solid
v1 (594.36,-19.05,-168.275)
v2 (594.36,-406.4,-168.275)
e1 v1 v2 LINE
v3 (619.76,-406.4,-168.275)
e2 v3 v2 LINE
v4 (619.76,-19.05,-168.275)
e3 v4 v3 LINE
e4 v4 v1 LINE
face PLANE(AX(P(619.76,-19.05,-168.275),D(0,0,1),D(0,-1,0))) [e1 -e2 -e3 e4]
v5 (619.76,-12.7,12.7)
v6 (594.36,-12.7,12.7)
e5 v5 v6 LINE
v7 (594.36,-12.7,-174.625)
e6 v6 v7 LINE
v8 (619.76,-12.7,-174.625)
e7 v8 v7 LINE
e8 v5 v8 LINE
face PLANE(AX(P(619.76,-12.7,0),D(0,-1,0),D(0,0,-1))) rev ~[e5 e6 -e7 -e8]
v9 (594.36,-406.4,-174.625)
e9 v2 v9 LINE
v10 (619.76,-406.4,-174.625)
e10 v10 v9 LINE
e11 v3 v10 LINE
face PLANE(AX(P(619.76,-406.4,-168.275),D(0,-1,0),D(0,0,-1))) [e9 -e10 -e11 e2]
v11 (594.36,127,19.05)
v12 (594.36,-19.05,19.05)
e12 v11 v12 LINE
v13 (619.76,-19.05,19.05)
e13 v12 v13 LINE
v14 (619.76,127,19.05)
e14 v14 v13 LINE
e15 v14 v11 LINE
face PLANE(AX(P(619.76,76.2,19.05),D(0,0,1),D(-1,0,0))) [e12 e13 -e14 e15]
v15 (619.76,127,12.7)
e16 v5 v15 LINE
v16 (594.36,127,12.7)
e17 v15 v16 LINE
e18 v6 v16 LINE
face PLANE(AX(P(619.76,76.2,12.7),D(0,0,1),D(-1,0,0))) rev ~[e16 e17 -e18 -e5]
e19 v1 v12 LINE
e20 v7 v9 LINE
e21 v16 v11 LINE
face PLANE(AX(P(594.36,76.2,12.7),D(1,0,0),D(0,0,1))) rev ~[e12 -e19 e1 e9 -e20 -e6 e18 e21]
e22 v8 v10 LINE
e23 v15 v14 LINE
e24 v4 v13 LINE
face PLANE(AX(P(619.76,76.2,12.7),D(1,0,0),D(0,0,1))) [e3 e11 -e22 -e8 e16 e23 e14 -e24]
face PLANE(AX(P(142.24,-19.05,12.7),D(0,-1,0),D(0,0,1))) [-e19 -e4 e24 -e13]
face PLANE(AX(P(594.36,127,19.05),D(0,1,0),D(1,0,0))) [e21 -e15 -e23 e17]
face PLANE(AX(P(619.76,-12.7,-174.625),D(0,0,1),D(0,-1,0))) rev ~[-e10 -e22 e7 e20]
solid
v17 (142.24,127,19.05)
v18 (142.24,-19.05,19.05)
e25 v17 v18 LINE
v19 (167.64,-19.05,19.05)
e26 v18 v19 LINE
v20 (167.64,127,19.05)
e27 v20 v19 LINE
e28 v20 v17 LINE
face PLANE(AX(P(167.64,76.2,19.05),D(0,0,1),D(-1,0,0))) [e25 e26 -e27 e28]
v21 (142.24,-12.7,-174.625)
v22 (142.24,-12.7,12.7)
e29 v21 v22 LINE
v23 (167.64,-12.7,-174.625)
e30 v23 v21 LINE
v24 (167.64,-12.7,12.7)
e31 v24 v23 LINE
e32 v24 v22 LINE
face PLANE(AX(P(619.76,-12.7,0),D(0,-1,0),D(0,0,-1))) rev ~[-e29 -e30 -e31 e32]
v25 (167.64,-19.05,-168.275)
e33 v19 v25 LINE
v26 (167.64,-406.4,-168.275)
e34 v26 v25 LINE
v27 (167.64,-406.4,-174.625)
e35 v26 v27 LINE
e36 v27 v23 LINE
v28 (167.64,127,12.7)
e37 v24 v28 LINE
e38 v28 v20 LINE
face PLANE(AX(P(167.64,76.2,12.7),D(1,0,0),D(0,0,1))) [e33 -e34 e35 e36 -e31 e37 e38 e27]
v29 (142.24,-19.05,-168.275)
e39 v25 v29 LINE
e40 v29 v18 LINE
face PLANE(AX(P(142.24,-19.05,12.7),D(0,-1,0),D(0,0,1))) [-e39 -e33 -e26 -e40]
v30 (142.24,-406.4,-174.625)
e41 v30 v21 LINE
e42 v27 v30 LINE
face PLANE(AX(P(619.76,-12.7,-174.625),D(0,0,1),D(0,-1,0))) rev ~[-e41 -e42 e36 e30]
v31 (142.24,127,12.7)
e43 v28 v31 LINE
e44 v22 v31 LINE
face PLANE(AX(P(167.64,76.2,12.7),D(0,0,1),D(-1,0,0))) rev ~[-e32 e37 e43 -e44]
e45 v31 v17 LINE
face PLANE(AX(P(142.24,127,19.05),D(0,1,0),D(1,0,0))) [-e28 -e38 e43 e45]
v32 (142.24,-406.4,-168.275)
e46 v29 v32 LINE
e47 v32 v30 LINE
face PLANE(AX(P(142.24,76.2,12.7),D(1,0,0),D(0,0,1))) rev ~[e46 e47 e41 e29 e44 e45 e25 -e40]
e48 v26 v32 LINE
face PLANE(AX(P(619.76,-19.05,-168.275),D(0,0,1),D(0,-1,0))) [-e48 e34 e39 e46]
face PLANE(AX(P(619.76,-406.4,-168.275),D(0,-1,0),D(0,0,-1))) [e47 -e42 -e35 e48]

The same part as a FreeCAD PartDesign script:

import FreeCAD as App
import Part
import Sketcher
Q = App.Units.Quantity


def add_polygon(sketch, points):
    """Adds a closed chain of lines whose ends are joined by coincident constraints."""
    first, n = sketch.GeometryCount, len(points)
    for a, b in zip(points, points[1:] + points[:1]):
        sketch.addGeometry(Part.LineSegment(App.Vector(*a, 0), App.Vector(*b, 0)), False)
    for i in range(n):
        sketch.addConstraint(Sketcher.Constraint("Coincident", first + i, 2, first + (i + 1) % n, 1))

doc = App.newDocument("Part")
body = doc.addObject("PartDesign::Body", "Body")
body.AllowCompound = True

sketch1 = body.newObject("Sketcher::SketchObject", "Sketch")
sketch1.AttachmentSupport = (doc.getObject("XY_Plane"), [""])
sketch1.MapMode = "FlatFace"
add_polygon(sketch1, [(168, 76), (142, 76), (142, -406), (168, -406)])
add_polygon(sketch1, [(620, 76), (594, 76), (594, -406), (620, -406)])
sketch1.addConstraint([
    Sketcher.Constraint("Horizontal", 0),
    Sketcher.Constraint("Vertical", 1),
    Sketcher.Constraint("Horizontal", 2),
    Sketcher.Constraint("Vertical", 3),
    Sketcher.Constraint("Horizontal", 4),
    Sketcher.Constraint("Vertical", 5),
    Sketcher.Constraint("Horizontal", 6),
    Sketcher.Constraint("Vertical", 7),
    Sketcher.Constraint("Horizontal", 3, 2, 4, 2),
    Sketcher.Constraint("Horizontal", 2, 2, 5, 2),
    Sketcher.Constraint("Equal", 2, 4),
    Sketcher.Constraint("DistanceX", 0, 2, 0, 1, Q("1 in")),
    Sketcher.Constraint("DistanceY", 1, 2, 1, 1, Q("19 in")),
    Sketcher.Constraint("DistanceY", -1, 1, 0, 2, Q("3 in")),
    Sketcher.Constraint("DistanceX", 3, 2, 4, 2, Q("16.8 in")),
    Sketcher.Constraint("DistanceX", -1, 1, 0, 2, Q("5.6 in")),
])
pad1 = body.newObject("PartDesign::Pad", "Pad")
pad1.Profile = sketch1
pad1.Length = Q("0.75 in")

sketch2 = body.newObject("Sketcher::SketchObject", "Sketch001")
sketch2.AttachmentSupport = (doc.getObject("YZ_Plane"), [""])
sketch2.MapMode = "FlatFace"
sketch2.AttachmentOffset = App.Placement(App.Vector(0, 0, 5.6 * 25.4), App.Rotation())
add_polygon(sketch2, [(76, 13), (76, 0), (-406, 0), (-406, 13)])
sketch2.addConstraint([
    Sketcher.Constraint("Vertical", 0),
    Sketcher.Constraint("Horizontal", 1),
    Sketcher.Constraint("Vertical", 2),
    Sketcher.Constraint("Horizontal", 3),
    Sketcher.Constraint("PointOnObject", 0, 2, -1),
    Sketcher.Constraint("DistanceX", 1, 2, 1, 1, Q("19 in")),
    Sketcher.Constraint("DistanceY", 0, 2, 0, 1, Q("0.5 in")),
    Sketcher.Constraint("DistanceX", -1, 1, 0, 2, Q("3 in")),
])
pocket1 = body.newObject("PartDesign::Pocket", "Pocket")
pocket1.Profile = sketch2
pocket1.Length = Q("82.3125 in")
pocket1.Reversed = True

sketch3 = body.newObject("Sketcher::SketchObject", "Sketch002")
sketch3.AttachmentSupport = (doc.getObject("YZ_Plane"), [""])
sketch3.MapMode = "FlatFace"
sketch3.AttachmentOffset = App.Placement(App.Vector(0, 0, 24.4 * 25.4), App.Rotation())
add_polygon(sketch3, [(-13, -175), (-13, 13), (-19, 13), (-19, -168), (-406, -168), (-406, -175)])
sketch3.addConstraint([
    Sketcher.Constraint("Vertical", 0),
    Sketcher.Constraint("Horizontal", 1),
    Sketcher.Constraint("Vertical", 2),
    Sketcher.Constraint("Horizontal", 3),
    Sketcher.Constraint("Vertical", 4),
    Sketcher.Constraint("Horizontal", 5),
    Sketcher.Constraint("Equal", 1, 4),
    Sketcher.Constraint("DistanceX", 1, 2, 1, 1, Q("0.25 in")),
    Sketcher.Constraint("DistanceX", 3, 2, 3, 1, Q("15.25 in")),
    Sketcher.Constraint("DistanceX", 0, 2, -1, 1, Q("0.5 in")),
    Sketcher.Constraint("DistanceY", -1, 1, 0, 2, Q("0.5 in")),
    Sketcher.Constraint("DistanceY", 0, 1, 0, 2, Q("7.375 in")),
])
pad2 = body.newObject("PartDesign::Pad", "Pad001")
pad2.Profile = sketch3
pad2.Length = Q("18.8 in")
pad2.Reversed = True

sketch4 = body.newObject("Sketcher::SketchObject", "Sketch003")
sketch4.AttachmentSupport = (doc.getObject("YZ_Plane"), [""])
sketch4.MapMode = "FlatFace"
sketch4.AttachmentOffset = App.Placement(App.Vector(0, 0, 5.6 * 25.4), App.Rotation())
add_polygon(sketch4, [(-19, 19), (-19, 13), (-406, 13), (-406, 19)])
sketch4.addConstraint([
    Sketcher.Constraint("Vertical", 0),
    Sketcher.Constraint("Horizontal", 1),
    Sketcher.Constraint("Vertical", 2),
    Sketcher.Constraint("Horizontal", 3),
    Sketcher.Constraint("DistanceX", 1, 2, -1, 1, Q("16 in")),
    Sketcher.Constraint("DistanceX", 1, 2, 1, 1, Q("15.25 in")),
    Sketcher.Constraint("DistanceY", 0, 2, 0, 1, Q("0.25 in")),
    Sketcher.Constraint("DistanceY", -1, 1, 0, 2, Q("0.5 in")),
])
pocket2 = body.newObject("PartDesign::Pocket", "Pocket001")
pocket2.Profile = sketch4
pocket2.Length = Q("26.95 in")
pocket2.Reversed = True

sketch5 = body.newObject("Sketcher::SketchObject", "Sketch004")
sketch5.AttachmentSupport = (doc.getObject("XY_Plane"), [""])
sketch5.MapMode = "FlatFace"
sketch5.AttachmentOffset = App.Placement(App.Vector(0, 0, 0.5 * 25.4), App.Rotation())
add_polygon(sketch5, [(168, -13), (168, -19), (594, -19), (594, -13)])
sketch5.addConstraint([
    Sketcher.Constraint("Vertical", 0),
    Sketcher.Constraint("Horizontal", 1),
    Sketcher.Constraint("Vertical", 2),
    Sketcher.Constraint("Horizontal", 3),
    Sketcher.Constraint("DistanceX", 1, 1, 1, 2, Q("16.8 in")),
    Sketcher.Constraint("DistanceY", 0, 2, 0, 1, Q("0.25 in")),
    Sketcher.Constraint("DistanceX", -1, 1, 0, 2, Q("6.6 in")),
    Sketcher.Constraint("DistanceY", 2, 2, -1, 1, Q("0.5 in")),
])
pocket3 = body.newObject("PartDesign::Pocket", "Pocket002")
pocket3.Profile = sketch5
pocket3.Length = Q("39.675 in")

sketch6 = body.newObject("Sketcher::SketchObject", "Sketch005")
sketch6.AttachmentSupport = (doc.getObject("XY_Plane"), [""])
sketch6.MapMode = "FlatFace"
sketch6.AttachmentOffset = App.Placement(App.Vector(0, 0, -6.625 * 25.4), App.Rotation())
add_polygon(sketch6, [(168, -406), (594, -406), (594, -19), (168, -19)])
sketch6.addConstraint([
    Sketcher.Constraint("Horizontal", 0),
    Sketcher.Constraint("Vertical", 1),
    Sketcher.Constraint("Horizontal", 2),
    Sketcher.Constraint("Vertical", 3),
    Sketcher.Constraint("DistanceX", 0, 1, 0, 2, Q("16.8 in")),
    Sketcher.Constraint("DistanceY", 0, 2, -1, 1, Q("16 in")),
    Sketcher.Constraint("DistanceY", 1, 1, 1, 2, Q("15.25 in")),
    Sketcher.Constraint("DistanceX", -1, 1, 0, 2, Q("23.4 in")),
])
pocket4 = body.newObject("PartDesign::Pocket", "Pocket003")
pocket4.Profile = sketch6
pocket4.Length = Q("7.3875 in")

sketch7 = body.newObject("Sketcher::SketchObject", "Sketch006")
sketch7.AttachmentSupport = (doc.getObject("XZ_Plane"), [""])
sketch7.MapMode = "FlatFace"
sketch7.AttachmentOffset = App.Placement(App.Vector(0, 0, -3 * 25.4), App.Rotation())
add_polygon(sketch7, [(620, 19), (620, 13), (594, 13), (594, 19)])
sketch7.addConstraint([
    Sketcher.Constraint("Vertical", 0),
    Sketcher.Constraint("Horizontal", 1),
    Sketcher.Constraint("Vertical", 2),
    Sketcher.Constraint("Horizontal", 3),
    Sketcher.Constraint("DistanceX", 1, 2, 1, 1, Q("1 in")),
    Sketcher.Constraint("DistanceY", 0, 2, 0, 1, Q("0.25 in")),
    Sketcher.Constraint("DistanceX", -1, 1, 0, 2, Q("24.4 in")),
    Sketcher.Constraint("DistanceY", -1, 1, 0, 2, Q("0.5 in")),
])
pad3 = body.newObject("PartDesign::Pad", "Pad002")
pad3.Profile = sketch7
pad3.Length = Q("2 in")
pad3.Reversed = True

sketch8 = body.newObject("Sketcher::SketchObject", "Sketch007")
sketch8.AttachmentSupport = (doc.getObject("XZ_Plane"), [""])
sketch8.MapMode = "FlatFace"
sketch8.AttachmentOffset = App.Placement(App.Vector(0, 0, -3 * 25.4), App.Rotation())
add_polygon(sketch8, [(168, 19), (168, 13), (142, 13), (142, 19)])
sketch8.addConstraint([
    Sketcher.Constraint("Vertical", 0),
    Sketcher.Constraint("Horizontal", 1),
    Sketcher.Constraint("Vertical", 2),
    Sketcher.Constraint("Horizontal", 3),
    Sketcher.Constraint("DistanceX", 1, 2, 1, 1, Q("1 in")),
    Sketcher.Constraint("DistanceY", 0, 2, 0, 1, Q("0.25 in")),
    Sketcher.Constraint("DistanceX", -1, 1, 0, 2, Q("6.6 in")),
    Sketcher.Constraint("DistanceY", -1, 1, 0, 2, Q("0.5 in")),
])
pad4 = body.newObject("PartDesign::Pad", "Pad003")
pad4.Profile = sketch8
pad4.Length = Q("2 in")
pad4.Reversed = True

doc.recompute()
